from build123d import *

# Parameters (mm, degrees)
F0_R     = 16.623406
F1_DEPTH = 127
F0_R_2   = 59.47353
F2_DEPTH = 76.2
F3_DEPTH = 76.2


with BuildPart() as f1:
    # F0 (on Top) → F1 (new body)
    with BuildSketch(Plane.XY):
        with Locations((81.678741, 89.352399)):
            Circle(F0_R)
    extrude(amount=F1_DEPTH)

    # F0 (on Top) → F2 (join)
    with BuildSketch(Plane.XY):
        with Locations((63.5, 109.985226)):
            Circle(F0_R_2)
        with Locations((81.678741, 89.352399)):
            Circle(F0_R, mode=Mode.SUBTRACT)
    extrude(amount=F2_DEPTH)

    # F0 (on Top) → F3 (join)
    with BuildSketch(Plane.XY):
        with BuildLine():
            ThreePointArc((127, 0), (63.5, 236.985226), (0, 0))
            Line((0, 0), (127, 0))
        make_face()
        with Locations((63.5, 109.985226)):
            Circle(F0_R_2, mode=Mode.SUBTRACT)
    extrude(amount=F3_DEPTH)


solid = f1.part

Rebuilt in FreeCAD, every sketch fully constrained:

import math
import FreeCAD as App
import Part
import Sketcher
Q = App.Units.Quantity

doc = App.newDocument("Part")
body = doc.addObject("PartDesign::Body", "Body")

sketch1 = doc.addObject("Sketcher::SketchObject", "Sketch")
body.addObject(sketch1)
sketch1.AttachmentSupport = (doc.XY_Plane, [""])
sketch1.MapMode = "FlatFace"
sketch1.addGeometry(Part.Circle(App.Vector(82, 89, 0), App.Vector(0, 0, 1), 17), False)
sketch1.addConstraint(Sketcher.Constraint("Diameter", 0, Q("33.246812 mm")))
sketch1.addConstraint(Sketcher.Constraint("DistanceY", -1, 1, 0, 3, Q("89.352399 mm")))
sketch1.addConstraint(Sketcher.Constraint("DistanceX", -1, 1, 0, 3, Q("81.678741 mm")))
pad1 = doc.addObject("PartDesign::Pad", "Pad")
body.addObject(pad1)
pad1.Profile = sketch1
pad1.Length = Q("5 in")

sketch2 = doc.addObject("Sketcher::SketchObject", "Sketch001")
body.addObject(sketch2)
sketch2.AttachmentSupport = (doc.XY_Plane, [""])
sketch2.MapMode = "FlatFace"
sketch2.addGeometry(Part.Circle(App.Vector(64, 110, 0), App.Vector(0, 0, 1), 59), False)
sketch2.addGeometry(Part.Circle(App.Vector(82, 89, 0), App.Vector(0, 0, 1), 17), False)
sketch2.addConstraint(Sketcher.Constraint("DistanceX", -1, 1, 0, 3, Q("2.5 in")))
sketch2.addConstraint(Sketcher.Constraint("Diameter", 0, Q("118.94706 mm")))
sketch2.addConstraint(Sketcher.Constraint("Diameter", 1, Q("33.246812 mm")))
sketch2.addConstraint(Sketcher.Constraint("DistanceY", -1, 1, 1, 3, Q("89.352399 mm")))
sketch2.addConstraint(Sketcher.Constraint("DistanceX", -1, 1, 1, 3, Q("81.678741 mm")))
sketch2.addConstraint(Sketcher.Constraint("DistanceY", -1, 1, 0, 3, Q("109.985226 mm")))
pad2 = doc.addObject("PartDesign::Pad", "Pad001")
body.addObject(pad2)
pad2.Profile = sketch2
pad2.Length = Q("3 in")

sketch3 = doc.addObject("Sketcher::SketchObject", "Sketch002")
body.addObject(sketch3)
sketch3.AttachmentSupport = (doc.XY_Plane, [""])
sketch3.MapMode = "FlatFace"
sketch3.addGeometry(Part.ArcOfCircle(Part.Circle(App.Vector(64, 110, 0), App.Vector(0, 0, 1), 127), math.radians(-60), math.radians(240)), False)
sketch3.addGeometry(Part.LineSegment(App.Vector(0, 0, 0), App.Vector(127, 0, 0)), False)
sketch3.addGeometry(Part.Circle(App.Vector(64, 110, 0), App.Vector(0, 0, 1), 59), False)
sketch3.addConstraint(Sketcher.Constraint("Coincident", 0, 1, 1, 2))
sketch3.addConstraint(Sketcher.Constraint("Coincident", 1, 1, 0, 2))
sketch3.addConstraint(Sketcher.Constraint("Horizontal", 1))
sketch3.addConstraint(Sketcher.Constraint("Coincident", 1, 1, -1, 1))
sketch3.addConstraint(Sketcher.Constraint("Coincident", 2, 3, 0, 3))
sketch3.addConstraint(Sketcher.Constraint("Radius", 0, Q("5 in")))
sketch3.addConstraint(Sketcher.Constraint("DistanceX", 1, 1, 1, 2, Q("5 in")))
sketch3.addConstraint(Sketcher.Constraint("Diameter", 2, Q("118.94706 mm")))
pad3 = doc.addObject("PartDesign::Pad", "Pad002")
body.addObject(pad3)
pad3.Profile = sketch3
pad3.Length = Q("3 in")

doc.recompute()
